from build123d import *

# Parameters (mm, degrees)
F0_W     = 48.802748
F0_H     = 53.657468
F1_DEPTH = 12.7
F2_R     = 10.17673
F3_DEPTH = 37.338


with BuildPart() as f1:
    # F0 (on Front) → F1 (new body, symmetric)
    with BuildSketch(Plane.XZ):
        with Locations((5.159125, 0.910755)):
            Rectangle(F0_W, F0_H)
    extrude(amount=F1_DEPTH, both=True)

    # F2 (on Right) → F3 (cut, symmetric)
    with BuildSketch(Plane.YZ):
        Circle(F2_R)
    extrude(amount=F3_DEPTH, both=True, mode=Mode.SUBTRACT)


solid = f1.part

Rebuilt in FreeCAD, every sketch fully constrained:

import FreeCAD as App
import Part
import Sketcher
Q = App.Units.Quantity

doc = App.newDocument("Part")
body = doc.addObject("PartDesign::Body", "Body")

# Sketch on XZ plane
sketch1 = body.newObject("Sketcher::SketchObject", "Sketch")
sketch1.AttachmentSupport = (doc.getObject("XZ_Plane"), [""])
sketch1.MapMode = "FlatFace"
sketch1.addGeometry([
    Part.LineSegment(App.Vector(-19.242249, 27.739489, 0), App.Vector(-19.242249, -25.917979, 0)),
    Part.LineSegment(App.Vector(-19.242249, -25.917979, 0), App.Vector(29.560499, -25.917979, 0)),
    Part.LineSegment(App.Vector(29.560499, -25.917979, 0), App.Vector(29.560499, 27.739489, 0)),
    Part.LineSegment(App.Vector(29.560499, 27.739489, 0), App.Vector(-19.242249, 27.739489, 0)),
], False)
sketch1.addConstraint([
    Sketcher.Constraint("Coincident", 0, 2, 1, 1),
    Sketcher.Constraint("Coincident", 1, 2, 2, 1),
    Sketcher.Constraint("Coincident", 2, 2, 3, 1),
    Sketcher.Constraint("Coincident", 3, 2, 0, 1),
    Sketcher.Constraint("Vertical", 0),
    Sketcher.Constraint("Horizontal", 1),
    Sketcher.Constraint("Vertical", 2),
    Sketcher.Constraint("Horizontal", 3),
    Sketcher.Constraint("DistanceX", -1, 1, 1, 2, 29.560499),
    Sketcher.Constraint("DistanceX", 1, 1, 1, 2, 48.802748),
    Sketcher.Constraint("DistanceY", 0, 2, 0, 1, 53.657468),
    Sketcher.Constraint("DistanceY", 0, 2, -1, 1, 25.917979),
])
pad1 = body.newObject("PartDesign::Pad", "Pad")
pad1.Profile = sketch1
pad1.Length = Q("1 in")
pad1.Midplane = True

# Sketch on YZ plane
sketch2 = body.newObject("Sketcher::SketchObject", "Sketch001")
sketch2.AttachmentSupport = (doc.getObject("YZ_Plane"), [""])
sketch2.MapMode = "FlatFace"
sketch2.addGeometry(Part.Circle(App.Vector(0, 0, 0), App.Vector(0, 0, 1), 10.17673), False)
sketch2.addConstraint([
    Sketcher.Constraint("Coincident", 0, 3, -1, 1),
    Sketcher.Constraint("Diameter", 0, 20.35346),
])
pocket1 = body.newObject("PartDesign::Pocket", "Pocket")
pocket1.Profile = sketch2
pocket1.Length = Q("2.94 in")
pocket1.Midplane = True

doc.recompute()
